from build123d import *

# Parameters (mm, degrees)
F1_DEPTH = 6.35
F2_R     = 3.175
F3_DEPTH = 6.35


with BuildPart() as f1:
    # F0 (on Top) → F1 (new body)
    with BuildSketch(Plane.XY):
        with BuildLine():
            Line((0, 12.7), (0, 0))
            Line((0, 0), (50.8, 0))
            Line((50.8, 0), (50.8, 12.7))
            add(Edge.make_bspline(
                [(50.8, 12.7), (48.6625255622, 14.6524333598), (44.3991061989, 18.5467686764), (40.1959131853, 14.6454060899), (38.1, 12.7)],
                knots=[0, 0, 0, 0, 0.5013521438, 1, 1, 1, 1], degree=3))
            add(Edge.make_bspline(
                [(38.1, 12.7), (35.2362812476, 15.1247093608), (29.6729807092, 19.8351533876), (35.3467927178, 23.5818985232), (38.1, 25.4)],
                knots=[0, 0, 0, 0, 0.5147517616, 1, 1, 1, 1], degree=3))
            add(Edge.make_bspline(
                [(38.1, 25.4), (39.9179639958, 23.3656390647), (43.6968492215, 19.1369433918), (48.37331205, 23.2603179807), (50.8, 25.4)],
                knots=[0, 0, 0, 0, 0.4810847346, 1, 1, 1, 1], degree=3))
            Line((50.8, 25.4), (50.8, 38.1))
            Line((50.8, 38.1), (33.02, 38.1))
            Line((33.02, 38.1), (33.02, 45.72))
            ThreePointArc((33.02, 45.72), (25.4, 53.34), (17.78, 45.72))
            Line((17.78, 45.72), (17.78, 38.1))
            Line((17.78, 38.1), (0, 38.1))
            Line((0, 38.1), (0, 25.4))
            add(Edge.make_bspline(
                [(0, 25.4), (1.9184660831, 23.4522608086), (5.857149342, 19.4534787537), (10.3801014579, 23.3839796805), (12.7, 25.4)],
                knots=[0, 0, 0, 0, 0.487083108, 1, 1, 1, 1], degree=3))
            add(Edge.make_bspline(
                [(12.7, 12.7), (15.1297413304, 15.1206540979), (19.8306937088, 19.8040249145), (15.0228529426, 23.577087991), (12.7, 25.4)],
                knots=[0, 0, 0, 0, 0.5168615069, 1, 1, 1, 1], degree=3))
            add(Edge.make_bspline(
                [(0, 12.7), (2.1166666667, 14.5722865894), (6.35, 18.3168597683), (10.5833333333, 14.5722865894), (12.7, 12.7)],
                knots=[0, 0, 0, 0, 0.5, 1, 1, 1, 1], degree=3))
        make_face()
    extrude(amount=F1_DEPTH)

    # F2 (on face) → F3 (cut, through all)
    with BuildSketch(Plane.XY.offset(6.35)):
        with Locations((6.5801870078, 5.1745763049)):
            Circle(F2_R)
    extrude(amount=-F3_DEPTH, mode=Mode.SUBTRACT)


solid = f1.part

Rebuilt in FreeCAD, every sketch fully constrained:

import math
import FreeCAD as App
import Part
import Sketcher
Q = App.Units.Quantity

doc = App.newDocument("Part")
body = doc.addObject("PartDesign::Body", "Body")

# Sketch on XY plane
sketch1 = doc.addObject("Sketcher::SketchObject", "Sketch")
body.addObject(sketch1)
sketch1.AttachmentSupport = (doc.XY_Plane, [""])
sketch1.MapMode = "FlatFace"
sketch1.addGeometry(Part.LineSegment(App.Vector(0, 12.7, 0), App.Vector(0, 0, 0)), False)
sketch1.addGeometry(Part.LineSegment(App.Vector(0, 0, 0), App.Vector(50.8, 0, 0)), False)
sketch1.addGeometry(Part.LineSegment(App.Vector(50.8, 0, 0), App.Vector(50.8, 12.7, 0)), False)
sketch1.addGeometry(Part.BSplineCurve([App.Vector(50.8, 12.7, 0), App.Vector(48.662526, 14.652433, 0), App.Vector(44.399106, 18.546769, 0), App.Vector(40.195913, 14.645406, 0), App.Vector(38.1, 12.7, 0)], [4, 1, 4], [0, 0.501352144, 1], False, 3, [1, 1, 1, 1, 1], False), False)
sketch1.addGeometry(Part.BSplineCurve([App.Vector(38.1, 12.7, 0), App.Vector(35.236281, 15.124709, 0), App.Vector(29.672981, 19.835153, 0), App.Vector(35.346793, 23.581899, 0), App.Vector(38.1, 25.4, 0)], [4, 1, 4], [0, 0.514751762, 1], False, 3, [1, 1, 1, 1, 1], False), False)
sketch1.addGeometry(Part.BSplineCurve([App.Vector(38.1, 25.4, 0), App.Vector(39.917964, 23.365639, 0), App.Vector(43.696849, 19.136943, 0), App.Vector(48.373312, 23.260318, 0), App.Vector(50.8, 25.4, 0)], [4, 1, 4], [0, 0.481084735, 1], False, 3, [1, 1, 1, 1, 1], False), False)
sketch1.addGeometry(Part.LineSegment(App.Vector(50.8, 25.4, 0), App.Vector(50.8, 38.1, 0)), False)
sketch1.addGeometry(Part.LineSegment(App.Vector(50.8, 38.1, 0), App.Vector(33.02, 38.1, 0)), False)
sketch1.addGeometry(Part.LineSegment(App.Vector(33.02, 38.1, 0), App.Vector(33.02, 45.72, 0)), False)
sketch1.addGeometry(Part.ArcOfCircle(Part.Circle(App.Vector(25.4, 45.72, 0), App.Vector(0, 0, 1), 7.62), math.radians(0), math.radians(180)), False)
sketch1.addGeometry(Part.LineSegment(App.Vector(17.78, 45.72, 0), App.Vector(17.78, 38.1, 0)), False)
sketch1.addGeometry(Part.LineSegment(App.Vector(17.78, 38.1, 0), App.Vector(0, 38.1, 0)), False)
sketch1.addGeometry(Part.LineSegment(App.Vector(0, 38.1, 0), App.Vector(0, 25.4, 0)), False)
sketch1.addGeometry(Part.BSplineCurve([App.Vector(0, 25.4, 0), App.Vector(1.918466, 23.452261, 0), App.Vector(5.857149, 19.453479, 0), App.Vector(10.380101, 23.38398, 0), App.Vector(12.7, 25.4, 0)], [4, 1, 4], [0, 0.487083108, 1], False, 3, [1, 1, 1, 1, 1], False), False)
sketch1.addGeometry(Part.BSplineCurve([App.Vector(12.7, 12.7, 0), App.Vector(15.129741, 15.120654, 0), App.Vector(19.830694, 19.804025, 0), App.Vector(15.022853, 23.577088, 0), App.Vector(12.7, 25.4, 0)], [4, 1, 4], [0, 0.516861507, 1], False, 3, [1, 1, 1, 1, 1], False), False)
sketch1.addGeometry(Part.BSplineCurve([App.Vector(0, 12.7, 0), App.Vector(2.116667, 14.572287, 0), App.Vector(6.35, 18.31686, 0), App.Vector(10.583333, 14.572287, 0), App.Vector(12.7, 12.7, 0)], [4, 1, 4], [0, 0.5, 1], False, 3, [1, 1, 1, 1, 1], False), False)
sketch1.addConstraint(Sketcher.Constraint("Block", 3))
sketch1.addConstraint(Sketcher.Constraint("Block", 4))
sketch1.addConstraint(Sketcher.Constraint("Block", 5))
sketch1.addConstraint(Sketcher.Constraint("Block", 13))
sketch1.addConstraint(Sketcher.Constraint("Block", 14))
sketch1.addConstraint(Sketcher.Constraint("Block", 15))
sketch1.addConstraint(Sketcher.Constraint("Coincident", 0, 2, 1, 1))
sketch1.addConstraint(Sketcher.Constraint("Coincident", 1, 2, 2, 1))
sketch1.addConstraint(Sketcher.Constraint("Coincident", 2, 2, 3, 1))
sketch1.addConstraint(Sketcher.Constraint("Coincident", 5, 2, 6, 1))
sketch1.addConstraint(Sketcher.Constraint("Coincident", 6, 2, 7, 1))
sketch1.addConstraint(Sketcher.Constraint("Coincident", 7, 2, 8, 1))
sketch1.addConstraint(Sketcher.Constraint("Tangent", 8, 2, 9, 1))
sketch1.addConstraint(Sketcher.Constraint("Tangent", 9, 2, 10, 1))
sketch1.addConstraint(Sketcher.Constraint("Coincident", 10, 2, 11, 1))
sketch1.addConstraint(Sketcher.Constraint("Coincident", 11, 2, 12, 1))
sketch1.addConstraint(Sketcher.Constraint("Coincident", 12, 2, 13, 1))
sketch1.addConstraint(Sketcher.Constraint("Coincident", 15, 1, 0, 1))
sketch1.addConstraint(Sketcher.Constraint("Vertical", 0))
sketch1.addConstraint(Sketcher.Constraint("Horizontal", 1))
sketch1.addConstraint(Sketcher.Constraint("Vertical", 2))
sketch1.addConstraint(Sketcher.Constraint("Vertical", 6))
sketch1.addConstraint(Sketcher.Constraint("Horizontal", 7))
sketch1.addConstraint(Sketcher.Constraint("Vertical", 8))
sketch1.addConstraint(Sketcher.Constraint("Vertical", 10))
sketch1.addConstraint(Sketcher.Constraint("Horizontal", 11))
sketch1.addConstraint(Sketcher.Constraint("Vertical", 12))
sketch1.addConstraint(Sketcher.Constraint("PointOnObject", 1, 2, -1))
sketch1.addConstraint(Sketcher.Constraint("Horizontal", 7, 2, 10, 2))
sketch1.addConstraint(Sketcher.Constraint("Equal", 7, 11))
sketch1.addConstraint(Sketcher.Constraint("Equal", 2, 6))
sketch1.addConstraint(Sketcher.Constraint("Radius", 9, Q("0.3 in")))
sketch1.addConstraint(Sketcher.Constraint("DistanceY", 8, 1, 8, 2, Q("0.3 in")))
pad1 = doc.addObject("PartDesign::Pad", "Pad")
body.addObject(pad1)
pad1.Profile = sketch1
pad1.Length = Q("0.25 in")

# Sketch on XY plane
sketch2 = doc.addObject("Sketcher::SketchObject", "Sketch001")
body.addObject(sketch2)
sketch2.AttachmentSupport = (doc.XY_Plane, [""])
sketch2.MapMode = "FlatFace"
sketch2.AttachmentOffset = App.Placement(App.Vector(0, 0, 0.25 * 25.4), App.Rotation())
sketch2.addGeometry(Part.Circle(App.Vector(6.6, 5.2, 0), App.Vector(0, 0, 1), 3.2), False)
sketch2.addConstraint(Sketcher.Constraint("Diameter", 0, Q("0.25 in")))
sketch2.addConstraint(Sketcher.Constraint("DistanceX", -1, 1, 0, 3, Q("6.580187 mm")))
sketch2.addConstraint(Sketcher.Constraint("DistanceY", -1, 1, 0, 3, Q("5.174576 mm")))
pocket1 = doc.addObject("PartDesign::Pocket", "Pocket")
body.addObject(pocket1)
pocket1.Profile = sketch2
pocket1.Type = "ThroughAll"

doc.recompute()
